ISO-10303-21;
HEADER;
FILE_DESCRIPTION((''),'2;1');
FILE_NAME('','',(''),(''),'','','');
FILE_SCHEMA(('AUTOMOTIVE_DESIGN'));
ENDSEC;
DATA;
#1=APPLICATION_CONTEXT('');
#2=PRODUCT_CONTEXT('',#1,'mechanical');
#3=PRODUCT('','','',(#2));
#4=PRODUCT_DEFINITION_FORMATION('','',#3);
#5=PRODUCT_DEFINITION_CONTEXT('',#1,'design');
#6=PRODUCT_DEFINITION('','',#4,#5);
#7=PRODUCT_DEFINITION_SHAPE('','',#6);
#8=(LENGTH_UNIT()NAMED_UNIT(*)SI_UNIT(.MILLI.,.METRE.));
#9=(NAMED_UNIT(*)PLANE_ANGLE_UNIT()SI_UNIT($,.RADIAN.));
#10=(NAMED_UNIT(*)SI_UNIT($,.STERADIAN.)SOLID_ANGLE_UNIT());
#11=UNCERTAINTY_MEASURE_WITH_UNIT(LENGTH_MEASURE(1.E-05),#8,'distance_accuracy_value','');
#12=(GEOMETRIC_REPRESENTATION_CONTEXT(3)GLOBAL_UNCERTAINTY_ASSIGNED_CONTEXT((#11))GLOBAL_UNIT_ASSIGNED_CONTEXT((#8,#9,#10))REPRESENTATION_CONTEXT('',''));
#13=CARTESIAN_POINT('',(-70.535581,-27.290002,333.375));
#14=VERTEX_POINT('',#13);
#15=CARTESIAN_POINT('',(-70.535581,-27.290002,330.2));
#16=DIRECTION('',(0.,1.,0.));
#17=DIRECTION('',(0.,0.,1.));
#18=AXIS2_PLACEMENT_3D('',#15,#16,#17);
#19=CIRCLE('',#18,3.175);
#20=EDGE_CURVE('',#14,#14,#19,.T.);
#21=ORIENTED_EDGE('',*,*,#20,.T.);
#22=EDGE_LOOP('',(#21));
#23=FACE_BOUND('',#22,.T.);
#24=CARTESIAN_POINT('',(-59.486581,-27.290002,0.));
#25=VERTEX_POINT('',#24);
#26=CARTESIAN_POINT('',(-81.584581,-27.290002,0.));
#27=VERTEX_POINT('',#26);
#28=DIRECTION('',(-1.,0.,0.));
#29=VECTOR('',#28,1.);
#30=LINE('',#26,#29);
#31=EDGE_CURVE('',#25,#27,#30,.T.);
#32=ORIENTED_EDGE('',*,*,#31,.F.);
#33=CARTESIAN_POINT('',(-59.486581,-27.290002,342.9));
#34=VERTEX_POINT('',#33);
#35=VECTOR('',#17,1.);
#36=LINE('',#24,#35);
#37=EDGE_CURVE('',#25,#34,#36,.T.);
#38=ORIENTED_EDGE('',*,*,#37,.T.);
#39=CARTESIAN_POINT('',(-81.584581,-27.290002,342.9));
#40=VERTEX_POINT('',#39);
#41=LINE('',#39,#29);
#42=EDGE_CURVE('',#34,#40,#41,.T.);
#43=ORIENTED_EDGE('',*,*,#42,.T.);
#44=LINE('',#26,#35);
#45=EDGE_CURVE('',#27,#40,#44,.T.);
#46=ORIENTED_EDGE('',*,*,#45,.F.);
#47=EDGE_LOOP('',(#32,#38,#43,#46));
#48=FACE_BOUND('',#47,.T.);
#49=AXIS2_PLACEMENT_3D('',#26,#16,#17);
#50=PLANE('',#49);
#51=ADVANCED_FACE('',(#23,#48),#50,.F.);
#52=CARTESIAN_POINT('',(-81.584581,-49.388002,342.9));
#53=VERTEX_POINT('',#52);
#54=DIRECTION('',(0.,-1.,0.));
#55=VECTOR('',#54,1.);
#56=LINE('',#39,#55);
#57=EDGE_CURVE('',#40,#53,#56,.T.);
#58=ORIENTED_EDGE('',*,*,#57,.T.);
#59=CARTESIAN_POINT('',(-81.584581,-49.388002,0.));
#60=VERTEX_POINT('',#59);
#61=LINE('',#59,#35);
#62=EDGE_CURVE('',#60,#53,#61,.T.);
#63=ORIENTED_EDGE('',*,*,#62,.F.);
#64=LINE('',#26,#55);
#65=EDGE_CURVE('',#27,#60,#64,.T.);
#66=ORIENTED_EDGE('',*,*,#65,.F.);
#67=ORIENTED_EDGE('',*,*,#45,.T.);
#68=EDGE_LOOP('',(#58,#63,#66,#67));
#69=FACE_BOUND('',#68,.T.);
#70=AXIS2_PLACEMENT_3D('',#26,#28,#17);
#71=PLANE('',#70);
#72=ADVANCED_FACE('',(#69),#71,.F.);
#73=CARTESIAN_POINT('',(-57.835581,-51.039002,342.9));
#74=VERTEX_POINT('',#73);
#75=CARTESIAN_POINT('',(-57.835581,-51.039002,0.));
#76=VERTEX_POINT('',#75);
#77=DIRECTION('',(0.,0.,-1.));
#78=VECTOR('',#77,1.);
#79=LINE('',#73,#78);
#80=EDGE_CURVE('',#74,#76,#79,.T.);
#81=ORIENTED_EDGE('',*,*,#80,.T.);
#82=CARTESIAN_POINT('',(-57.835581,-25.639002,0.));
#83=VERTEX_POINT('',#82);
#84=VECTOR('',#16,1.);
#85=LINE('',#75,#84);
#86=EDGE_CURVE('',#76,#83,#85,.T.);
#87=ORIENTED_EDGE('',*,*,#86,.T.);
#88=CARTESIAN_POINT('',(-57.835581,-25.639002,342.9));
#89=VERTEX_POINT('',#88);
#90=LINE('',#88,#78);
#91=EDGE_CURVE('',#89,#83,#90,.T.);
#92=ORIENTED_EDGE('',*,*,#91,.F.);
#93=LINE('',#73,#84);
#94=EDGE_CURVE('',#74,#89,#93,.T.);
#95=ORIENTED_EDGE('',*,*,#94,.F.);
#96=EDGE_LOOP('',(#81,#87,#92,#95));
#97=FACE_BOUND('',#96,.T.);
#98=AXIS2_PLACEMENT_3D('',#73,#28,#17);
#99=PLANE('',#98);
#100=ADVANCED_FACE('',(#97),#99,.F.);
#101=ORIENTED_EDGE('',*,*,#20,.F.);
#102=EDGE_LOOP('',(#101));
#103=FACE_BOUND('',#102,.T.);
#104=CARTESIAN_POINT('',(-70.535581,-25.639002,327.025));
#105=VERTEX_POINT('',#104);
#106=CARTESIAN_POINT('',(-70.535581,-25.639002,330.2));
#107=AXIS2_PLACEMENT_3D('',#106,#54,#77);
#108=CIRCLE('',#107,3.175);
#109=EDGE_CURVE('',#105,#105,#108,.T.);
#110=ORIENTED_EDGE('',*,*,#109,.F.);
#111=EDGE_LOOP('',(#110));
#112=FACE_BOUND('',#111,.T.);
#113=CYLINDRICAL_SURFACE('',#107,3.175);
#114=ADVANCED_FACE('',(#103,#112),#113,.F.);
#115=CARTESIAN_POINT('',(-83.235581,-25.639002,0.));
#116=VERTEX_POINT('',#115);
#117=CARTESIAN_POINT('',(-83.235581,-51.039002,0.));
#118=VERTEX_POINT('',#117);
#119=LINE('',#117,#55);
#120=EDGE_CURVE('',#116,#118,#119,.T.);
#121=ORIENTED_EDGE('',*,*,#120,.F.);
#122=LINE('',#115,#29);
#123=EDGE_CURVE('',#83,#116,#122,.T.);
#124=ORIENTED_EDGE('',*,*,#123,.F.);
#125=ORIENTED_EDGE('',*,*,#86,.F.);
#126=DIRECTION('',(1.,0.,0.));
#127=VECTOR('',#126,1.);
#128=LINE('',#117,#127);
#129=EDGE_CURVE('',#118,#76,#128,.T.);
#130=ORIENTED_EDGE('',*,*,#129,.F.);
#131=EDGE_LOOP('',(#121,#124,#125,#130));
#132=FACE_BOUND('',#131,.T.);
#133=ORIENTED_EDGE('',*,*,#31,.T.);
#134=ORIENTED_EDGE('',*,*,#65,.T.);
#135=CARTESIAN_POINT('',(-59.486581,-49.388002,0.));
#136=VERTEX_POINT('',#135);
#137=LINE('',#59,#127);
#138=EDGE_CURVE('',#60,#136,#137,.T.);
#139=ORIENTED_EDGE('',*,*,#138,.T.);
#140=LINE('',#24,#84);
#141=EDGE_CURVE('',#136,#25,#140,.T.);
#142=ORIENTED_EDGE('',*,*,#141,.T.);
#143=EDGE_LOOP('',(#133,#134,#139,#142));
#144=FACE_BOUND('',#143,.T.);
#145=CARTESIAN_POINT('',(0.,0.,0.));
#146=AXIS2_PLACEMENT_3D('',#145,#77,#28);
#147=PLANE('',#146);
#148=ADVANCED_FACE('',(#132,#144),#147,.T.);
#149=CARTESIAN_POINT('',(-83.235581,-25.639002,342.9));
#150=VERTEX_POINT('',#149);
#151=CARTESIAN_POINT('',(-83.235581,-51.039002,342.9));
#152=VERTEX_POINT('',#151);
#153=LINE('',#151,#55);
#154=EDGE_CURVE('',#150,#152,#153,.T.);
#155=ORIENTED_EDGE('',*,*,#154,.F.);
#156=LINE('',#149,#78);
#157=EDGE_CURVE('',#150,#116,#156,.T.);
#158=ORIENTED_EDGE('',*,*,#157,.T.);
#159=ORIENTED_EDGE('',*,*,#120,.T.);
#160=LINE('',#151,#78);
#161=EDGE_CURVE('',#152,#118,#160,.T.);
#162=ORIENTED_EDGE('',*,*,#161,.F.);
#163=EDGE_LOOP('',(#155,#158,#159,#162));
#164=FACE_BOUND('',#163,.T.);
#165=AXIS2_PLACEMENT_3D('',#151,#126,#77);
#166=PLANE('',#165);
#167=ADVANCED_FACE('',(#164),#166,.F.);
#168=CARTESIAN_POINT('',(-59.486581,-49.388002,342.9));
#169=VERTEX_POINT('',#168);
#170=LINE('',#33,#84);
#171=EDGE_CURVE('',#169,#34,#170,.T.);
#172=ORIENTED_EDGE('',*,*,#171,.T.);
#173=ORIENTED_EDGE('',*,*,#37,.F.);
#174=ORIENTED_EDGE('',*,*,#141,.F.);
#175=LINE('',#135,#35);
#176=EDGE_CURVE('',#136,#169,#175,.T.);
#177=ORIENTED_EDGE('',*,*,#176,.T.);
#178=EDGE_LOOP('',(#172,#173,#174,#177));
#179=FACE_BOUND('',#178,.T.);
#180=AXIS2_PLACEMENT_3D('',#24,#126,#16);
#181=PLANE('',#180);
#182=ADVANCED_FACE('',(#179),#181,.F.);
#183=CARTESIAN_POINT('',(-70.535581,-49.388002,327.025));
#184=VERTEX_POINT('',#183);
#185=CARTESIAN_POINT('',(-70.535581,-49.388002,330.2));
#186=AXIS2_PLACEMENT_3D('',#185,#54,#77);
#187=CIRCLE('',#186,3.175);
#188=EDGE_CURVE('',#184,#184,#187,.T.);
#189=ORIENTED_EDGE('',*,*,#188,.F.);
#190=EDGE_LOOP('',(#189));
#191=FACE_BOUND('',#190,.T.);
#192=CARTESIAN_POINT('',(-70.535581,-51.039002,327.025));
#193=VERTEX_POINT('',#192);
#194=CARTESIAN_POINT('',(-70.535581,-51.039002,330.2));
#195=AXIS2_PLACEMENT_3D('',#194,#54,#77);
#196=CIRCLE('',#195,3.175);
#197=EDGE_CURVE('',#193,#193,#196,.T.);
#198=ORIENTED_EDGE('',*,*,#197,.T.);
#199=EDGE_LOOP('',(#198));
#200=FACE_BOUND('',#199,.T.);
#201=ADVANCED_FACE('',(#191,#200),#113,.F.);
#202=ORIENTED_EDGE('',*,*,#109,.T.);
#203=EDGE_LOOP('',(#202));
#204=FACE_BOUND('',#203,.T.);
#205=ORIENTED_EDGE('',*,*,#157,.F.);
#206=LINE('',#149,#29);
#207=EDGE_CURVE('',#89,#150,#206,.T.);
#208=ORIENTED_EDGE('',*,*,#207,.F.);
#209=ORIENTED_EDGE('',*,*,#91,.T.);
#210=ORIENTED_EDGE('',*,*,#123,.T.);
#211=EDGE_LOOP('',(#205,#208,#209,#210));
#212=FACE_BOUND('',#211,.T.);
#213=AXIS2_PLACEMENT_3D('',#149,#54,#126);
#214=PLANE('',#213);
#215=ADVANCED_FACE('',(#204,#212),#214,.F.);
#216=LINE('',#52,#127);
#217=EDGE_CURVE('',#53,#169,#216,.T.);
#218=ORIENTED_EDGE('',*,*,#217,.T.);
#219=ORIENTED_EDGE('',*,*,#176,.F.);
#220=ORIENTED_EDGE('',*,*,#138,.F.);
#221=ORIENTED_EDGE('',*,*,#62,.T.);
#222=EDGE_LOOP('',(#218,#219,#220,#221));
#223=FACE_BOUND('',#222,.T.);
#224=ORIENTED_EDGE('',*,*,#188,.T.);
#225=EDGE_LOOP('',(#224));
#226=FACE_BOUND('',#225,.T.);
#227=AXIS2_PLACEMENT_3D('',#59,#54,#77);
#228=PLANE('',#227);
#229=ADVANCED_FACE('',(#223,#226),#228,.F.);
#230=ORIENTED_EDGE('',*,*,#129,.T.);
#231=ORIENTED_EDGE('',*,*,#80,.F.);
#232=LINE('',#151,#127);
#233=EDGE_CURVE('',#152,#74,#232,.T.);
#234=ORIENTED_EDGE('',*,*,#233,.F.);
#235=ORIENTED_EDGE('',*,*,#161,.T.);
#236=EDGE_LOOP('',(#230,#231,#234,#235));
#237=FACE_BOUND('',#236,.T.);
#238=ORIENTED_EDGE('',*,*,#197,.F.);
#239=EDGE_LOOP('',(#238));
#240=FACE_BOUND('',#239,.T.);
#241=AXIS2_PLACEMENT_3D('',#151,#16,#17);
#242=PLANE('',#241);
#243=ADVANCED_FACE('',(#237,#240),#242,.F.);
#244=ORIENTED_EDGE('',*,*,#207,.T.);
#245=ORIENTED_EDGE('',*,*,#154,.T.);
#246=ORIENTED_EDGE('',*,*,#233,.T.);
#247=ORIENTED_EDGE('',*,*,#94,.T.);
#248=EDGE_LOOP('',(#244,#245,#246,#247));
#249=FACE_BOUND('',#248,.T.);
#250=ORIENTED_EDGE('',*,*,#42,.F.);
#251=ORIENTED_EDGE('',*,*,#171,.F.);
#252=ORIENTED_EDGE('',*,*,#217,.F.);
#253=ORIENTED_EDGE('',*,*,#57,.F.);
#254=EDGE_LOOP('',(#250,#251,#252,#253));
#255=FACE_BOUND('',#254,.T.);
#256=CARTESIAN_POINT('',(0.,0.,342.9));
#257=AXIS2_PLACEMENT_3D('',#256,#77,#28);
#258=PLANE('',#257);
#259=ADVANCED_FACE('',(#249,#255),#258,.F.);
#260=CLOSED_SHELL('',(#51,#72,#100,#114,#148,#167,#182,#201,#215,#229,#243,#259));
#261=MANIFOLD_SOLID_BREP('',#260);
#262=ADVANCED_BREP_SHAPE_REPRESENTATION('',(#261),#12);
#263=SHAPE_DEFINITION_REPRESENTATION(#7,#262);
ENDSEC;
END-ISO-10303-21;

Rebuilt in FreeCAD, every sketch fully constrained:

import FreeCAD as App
import Part
import Sketcher
from FreeCAD import Vector
Q = App.Units.Quantity

doc = App.newDocument("Part")
params = doc.addObject("Spreadsheet::Sheet", "Params")
for row, (alias, value) in enumerate([
    ("sketch1_width", "1 in"),
    ("pad1_length", "13.5 in"),
    ("sketch2_width", "0.87 in"),
    ("sketch3_diameter", "0.25 in"),
], start=1):
    params.set(f"A{row}", alias)
    params.set(f"B{row}", "=" + value)
    params.setAlias(f"B{row}", alias)

body = doc.addObject("PartDesign::Body", "Body")

sketch1 = body.newObject("Sketcher::SketchObject", "Sketch")
sketch1.AttachmentSupport = (doc.getObject("XY_Plane"), [""])
sketch1.MapMode = "FlatFace"
sketch1.addGeometry([
    Part.LineSegment(Vector(-83.235581, -25.639002, 0), Vector(-83.235581, -51.039002, 0)),
    Part.LineSegment(Vector(-83.235581, -51.039002, 0), Vector(-57.835581, -51.039002, 0)),
    Part.LineSegment(Vector(-57.835581, -51.039002, 0), Vector(-57.835581, -25.639002, 0)),
    Part.LineSegment(Vector(-57.835581, -25.639002, 0), Vector(-83.235581, -25.639002, 0)),
], False)
sketch1.addConstraint([
    Sketcher.Constraint("Coincident", 0, 2, 1, 1),
    Sketcher.Constraint("Coincident", 1, 2, 2, 1),
    Sketcher.Constraint("Coincident", 2, 2, 3, 1),
    Sketcher.Constraint("Coincident", 3, 2, 0, 1),
    Sketcher.Constraint("Vertical", 0),
    Sketcher.Constraint("Horizontal", 1),
    Sketcher.Constraint("Vertical", 2),
    Sketcher.Constraint("Horizontal", 3),
    Sketcher.Constraint("Equal", 3, 0),
    Sketcher.Constraint("DistanceX", 1, 1, 1, 2, Q("1 in")),
    Sketcher.Constraint("DistanceX", 0, 2, -1, 1, 83.235581),
    Sketcher.Constraint("DistanceY", 0, 2, -1, 1, 51.039002),
])
sketch1.setExpression("Constraints[9]", "Params.sketch1_width")
pad1 = body.newObject("PartDesign::Pad", "Pad")
pad1.Profile = sketch1
pad1.setExpression("Length", "Params.pad1_length")

sketch2 = body.newObject("Sketcher::SketchObject", "Sketch001")
sketch2.AttachmentSupport = (doc.getObject("XY_Plane"), [""])
sketch2.MapMode = "FlatFace"
sketch2.AttachmentOffset = App.Placement(Vector(0, 0, 13.5 * 25.4), App.Rotation())
sketch2.addGeometry([
    Part.LineSegment(Vector(-81.584581, -27.290002, 0), Vector(-81.584581, -49.388002, 0)),
    Part.LineSegment(Vector(-81.584581, -49.388002, 0), Vector(-59.486581, -49.388002, 0)),
    Part.LineSegment(Vector(-59.486581, -49.388002, 0), Vector(-59.486581, -27.290002, 0)),
    Part.LineSegment(Vector(-59.486581, -27.290002, 0), Vector(-81.584581, -27.290002, 0)),
], False)
sketch2.addConstraint([
    Sketcher.Constraint("Coincident", 0, 2, 1, 1),
    Sketcher.Constraint("Coincident", 1, 2, 2, 1),
    Sketcher.Constraint("Coincident", 2, 2, 3, 1),
    Sketcher.Constraint("Coincident", 3, 2, 0, 1),
    Sketcher.Constraint("Vertical", 0),
    Sketcher.Constraint("Horizontal", 1),
    Sketcher.Constraint("Vertical", 2),
    Sketcher.Constraint("Horizontal", 3),
    Sketcher.Constraint("Equal", 3, 0),
    Sketcher.Constraint("DistanceX", 1, 1, 1, 2, Q("0.87 in")),
    Sketcher.Constraint("DistanceX", 0, 2, -1, 1, 81.584581),
    Sketcher.Constraint("DistanceY", 0, 2, -1, 1, 49.388002),
])
sketch2.setExpression("Constraints[9]", "Params.sketch2_width")
pocket1 = body.newObject("PartDesign::Pocket", "Pocket")
pocket1.Profile = sketch2
pocket1.Type = "ThroughAll"

sketch3 = body.newObject("Sketcher::SketchObject", "Sketch002")
sketch3.AttachmentSupport = (doc.getObject("XZ_Plane"), [""])
sketch3.MapMode = "FlatFace"
sketch3.AttachmentOffset = App.Placement(Vector(0, 0, 51.039002), App.Rotation())
sketch3.addGeometry(Part.Circle(Vector(-70.535581, 330.2, 0), Vector(0, 0, 1), 3.175), False)
sketch3.addConstraint([
    Sketcher.Constraint("Diameter", 0, Q("0.25 in")),
    Sketcher.Constraint("DistanceY", -1, 1, 0, 3, Q("13 in")),
    Sketcher.Constraint("DistanceX", 0, 3, -1, 1, 70.535581),
])
sketch3.setExpression("Constraints[0]", "Params.sketch3_diameter")
pocket2 = body.newObject("PartDesign::Pocket", "Pocket001")
pocket2.Profile = sketch3
pocket2.Type = "ThroughAll"

doc.recompute()
